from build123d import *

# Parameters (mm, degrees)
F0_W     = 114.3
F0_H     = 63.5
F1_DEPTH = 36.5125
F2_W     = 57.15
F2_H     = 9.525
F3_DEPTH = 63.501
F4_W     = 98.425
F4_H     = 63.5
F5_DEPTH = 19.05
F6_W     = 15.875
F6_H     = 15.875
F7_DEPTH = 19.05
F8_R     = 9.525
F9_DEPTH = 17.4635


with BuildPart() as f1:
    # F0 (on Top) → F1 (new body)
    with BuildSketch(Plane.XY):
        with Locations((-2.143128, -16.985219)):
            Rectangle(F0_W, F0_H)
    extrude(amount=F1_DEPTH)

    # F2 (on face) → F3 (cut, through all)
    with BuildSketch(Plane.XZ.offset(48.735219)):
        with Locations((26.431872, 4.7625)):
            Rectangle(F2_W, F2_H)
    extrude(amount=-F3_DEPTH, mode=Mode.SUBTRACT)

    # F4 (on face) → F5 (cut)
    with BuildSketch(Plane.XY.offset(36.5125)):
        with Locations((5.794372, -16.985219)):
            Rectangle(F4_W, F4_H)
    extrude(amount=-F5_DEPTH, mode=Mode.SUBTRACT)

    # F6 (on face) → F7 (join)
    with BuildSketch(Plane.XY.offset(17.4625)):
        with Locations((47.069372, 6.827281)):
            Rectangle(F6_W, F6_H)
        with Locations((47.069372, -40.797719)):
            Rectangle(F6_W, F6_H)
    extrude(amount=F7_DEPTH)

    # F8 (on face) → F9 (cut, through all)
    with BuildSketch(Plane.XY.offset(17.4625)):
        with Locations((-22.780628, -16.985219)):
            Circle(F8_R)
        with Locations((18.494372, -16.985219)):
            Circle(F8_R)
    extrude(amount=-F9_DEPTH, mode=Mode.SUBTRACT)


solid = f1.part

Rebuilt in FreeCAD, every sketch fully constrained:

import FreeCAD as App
import Part
import Sketcher
Q = App.Units.Quantity

doc = App.newDocument("Part")
body = doc.addObject("PartDesign::Body", "Body")

# Sketch on XY plane
sketch1 = body.newObject("Sketcher::SketchObject", "Sketch")
sketch1.AttachmentSupport = (doc.getObject("XY_Plane"), [""])
sketch1.MapMode = "FlatFace"
sketch1.addGeometry([
    Part.LineSegment(App.Vector(-59, 15, 0), App.Vector(-59, -49, 0)),
    Part.LineSegment(App.Vector(-59, -49, 0), App.Vector(55, -49, 0)),
    Part.LineSegment(App.Vector(55, -49, 0), App.Vector(55, 15, 0)),
    Part.LineSegment(App.Vector(55, 15, 0), App.Vector(-59, 15, 0)),
], False)
sketch1.addConstraint([
    Sketcher.Constraint("Coincident", 0, 2, 1, 1),
    Sketcher.Constraint("Coincident", 1, 2, 2, 1),
    Sketcher.Constraint("Coincident", 2, 2, 3, 1),
    Sketcher.Constraint("Coincident", 3, 2, 0, 1),
    Sketcher.Constraint("Vertical", 0),
    Sketcher.Constraint("Horizontal", 1),
    Sketcher.Constraint("Vertical", 2),
    Sketcher.Constraint("Horizontal", 3),
    Sketcher.Constraint("DistanceX", 1, 1, 1, 2, Q("4.5 in")),
    Sketcher.Constraint("DistanceY", 0, 2, 0, 1, Q("2.5 in")),
    Sketcher.Constraint("DistanceX", 0, 2, -1, 1, 59.293128),
    Sketcher.Constraint("DistanceY", 0, 2, -1, 1, 48.735219),
])
pad1 = body.newObject("PartDesign::Pad", "Pad")
pad1.Profile = sketch1
pad1.Length = Q("1.4375 in")

# Sketch on XZ plane
sketch2 = body.newObject("Sketcher::SketchObject", "Sketch001")
sketch2.AttachmentSupport = (doc.getObject("XZ_Plane"), [""])
sketch2.MapMode = "FlatFace"
sketch2.AttachmentOffset = App.Placement(App.Vector(0, 0, 48.735219), App.Rotation())
sketch2.addGeometry([
    Part.LineSegment(App.Vector(-2, 10, 0), App.Vector(-2, 0, 0)),
    Part.LineSegment(App.Vector(-2, 0, 0), App.Vector(55, 0, 0)),
    Part.LineSegment(App.Vector(55, 0, 0), App.Vector(55, 10, 0)),
    Part.LineSegment(App.Vector(55, 10, 0), App.Vector(-2, 10, 0)),
], False)
sketch2.addConstraint([
    Sketcher.Constraint("Coincident", 0, 2, 1, 1),
    Sketcher.Constraint("Coincident", 1, 2, 2, 1),
    Sketcher.Constraint("Coincident", 2, 2, 3, 1),
    Sketcher.Constraint("Coincident", 3, 2, 0, 1),
    Sketcher.Constraint("Vertical", 0),
    Sketcher.Constraint("Horizontal", 1),
    Sketcher.Constraint("Vertical", 2),
    Sketcher.Constraint("Horizontal", 3),
    Sketcher.Constraint("PointOnObject", 0, 2, -1),
    Sketcher.Constraint("DistanceX", 1, 1, 1, 2, Q("2.25 in")),
    Sketcher.Constraint("DistanceY", 0, 2, 0, 1, Q("0.375 in")),
    Sketcher.Constraint("DistanceX", 0, 2, -1, 1, 2.143128),
])
pocket1 = body.newObject("PartDesign::Pocket", "Pocket")
pocket1.Profile = sketch2
pocket1.Type = "ThroughAll"

# Sketch on XY plane
sketch3 = body.newObject("Sketcher::SketchObject", "Sketch002")
sketch3.AttachmentSupport = (doc.getObject("XY_Plane"), [""])
sketch3.MapMode = "FlatFace"
sketch3.AttachmentOffset = App.Placement(App.Vector(0, 0, 1.4375 * 25.4), App.Rotation())
sketch3.addGeometry([
    Part.LineSegment(App.Vector(-43, 15, 0), App.Vector(-43, -49, 0)),
    Part.LineSegment(App.Vector(-43, -49, 0), App.Vector(55, -49, 0)),
    Part.LineSegment(App.Vector(55, -49, 0), App.Vector(55, 15, 0)),
    Part.LineSegment(App.Vector(55, 15, 0), App.Vector(-43, 15, 0)),
], False)
sketch3.addConstraint([
    Sketcher.Constraint("Coincident", 0, 2, 1, 1),
    Sketcher.Constraint("Coincident", 1, 2, 2, 1),
    Sketcher.Constraint("Coincident", 2, 2, 3, 1),
    Sketcher.Constraint("Coincident", 3, 2, 0, 1),
    Sketcher.Constraint("Vertical", 0),
    Sketcher.Constraint("Horizontal", 1),
    Sketcher.Constraint("Vertical", 2),
    Sketcher.Constraint("Horizontal", 3),
    Sketcher.Constraint("DistanceY", 0, 2, 0, 1, Q("2.5 in")),
    Sketcher.Constraint("DistanceX", 1, 1, 1, 2, Q("3.875 in")),
    Sketcher.Constraint("DistanceX", 0, 2, -1, 1, 43.418128),
    Sketcher.Constraint("DistanceY", 0, 2, -1, 1, 48.735219),
])
pocket2 = body.newObject("PartDesign::Pocket", "Pocket001")
pocket2.Profile = sketch3
pocket2.Length = Q("0.75 in")

# Sketch on XY plane
sketch4 = body.newObject("Sketcher::SketchObject", "Sketch003")
sketch4.AttachmentSupport = (doc.getObject("XY_Plane"), [""])
sketch4.MapMode = "FlatFace"
sketch4.AttachmentOffset = App.Placement(App.Vector(0, 0, 0.6875 * 25.4), App.Rotation())
sketch4.addGeometry([
    Part.LineSegment(App.Vector(39, 15, 0), App.Vector(39, -1, 0)),  # 0
    Part.LineSegment(App.Vector(39, -1, 0), App.Vector(55, -1, 0)),  # 1
    Part.LineSegment(App.Vector(55, -1, 0), App.Vector(55, 15, 0)),  # 2
    Part.LineSegment(App.Vector(55, 15, 0), App.Vector(39, 15, 0)),  # 3
    Part.LineSegment(App.Vector(39, -33, 0), App.Vector(39, -49, 0)),  # 4
    Part.LineSegment(App.Vector(39, -49, 0), App.Vector(55, -49, 0)),  # 5
    Part.LineSegment(App.Vector(55, -49, 0), App.Vector(55, -33, 0)),  # 6
    Part.LineSegment(App.Vector(55, -33, 0), App.Vector(39, -33, 0)),  # 7
], False)
sketch4.addConstraint([
    Sketcher.Constraint("Coincident", 0, 2, 1, 1),
    Sketcher.Constraint("Coincident", 1, 2, 2, 1),
    Sketcher.Constraint("Coincident", 2, 2, 3, 1),
    Sketcher.Constraint("Coincident", 3, 2, 0, 1),
    Sketcher.Constraint("Coincident", 4, 2, 5, 1),
    Sketcher.Constraint("Coincident", 5, 2, 6, 1),
    Sketcher.Constraint("Coincident", 6, 2, 7, 1),
    Sketcher.Constraint("Coincident", 7, 2, 4, 1),
    Sketcher.Constraint("Vertical", 0),
    Sketcher.Constraint("Horizontal", 1),
    Sketcher.Constraint("Vertical", 2),
    Sketcher.Constraint("Horizontal", 3),
    Sketcher.Constraint("Vertical", 4),
    Sketcher.Constraint("Horizontal", 5),
    Sketcher.Constraint("Vertical", 6),
    Sketcher.Constraint("Horizontal", 7),
    Sketcher.Constraint("Vertical", 3, 2, 4, 2),
    Sketcher.Constraint("Vertical", 2, 2, 5, 2),
    Sketcher.Constraint("Equal", 7, 0),
    Sketcher.Constraint("Equal", 2, 4),
    Sketcher.Constraint("DistanceY", 4, 2, 3, 2, Q("2.5 in")),
    Sketcher.Constraint("DistanceX", 1, 1, 1, 2, Q("0.625 in")),
    Sketcher.Constraint("DistanceY", 0, 2, -1, 1, 1.110219),
    Sketcher.Constraint("DistanceX", -1, 1, 0, 2, 39.131872),
])
pad2 = body.newObject("PartDesign::Pad", "Pad001")
pad2.Profile = sketch4
pad2.Length = Q("0.75 in")

# Sketch on XY plane
sketch5 = body.newObject("Sketcher::SketchObject", "Sketch004")
sketch5.AttachmentSupport = (doc.getObject("XY_Plane"), [""])
sketch5.MapMode = "FlatFace"
sketch5.AttachmentOffset = App.Placement(App.Vector(0, 0, 0.6875 * 25.4), App.Rotation())
sketch5.addGeometry([
    Part.Circle(App.Vector(-23, -17, 0), App.Vector(0, 0, 1), 10),
    Part.Circle(App.Vector(18, -17, 0), App.Vector(0, 0, 1), 10),
], False)
sketch5.addConstraint([
    Sketcher.Constraint("Equal", 0, 1),
    Sketcher.Constraint("Horizontal", 0, 3, 1, 3),
    Sketcher.Constraint("Diameter", 0, Q("0.75 in")),
    Sketcher.Constraint("DistanceX", 0, 3, 1, 3, Q("1.625 in")),
    Sketcher.Constraint("DistanceX", 0, 3, -1, 1, 22.780628),
    Sketcher.Constraint("DistanceY", 0, 3, -1, 1, 16.985219),
])
pocket3 = body.newObject("PartDesign::Pocket", "Pocket002")
pocket3.Profile = sketch5
pocket3.Type = "ThroughAll"

doc.recompute()
